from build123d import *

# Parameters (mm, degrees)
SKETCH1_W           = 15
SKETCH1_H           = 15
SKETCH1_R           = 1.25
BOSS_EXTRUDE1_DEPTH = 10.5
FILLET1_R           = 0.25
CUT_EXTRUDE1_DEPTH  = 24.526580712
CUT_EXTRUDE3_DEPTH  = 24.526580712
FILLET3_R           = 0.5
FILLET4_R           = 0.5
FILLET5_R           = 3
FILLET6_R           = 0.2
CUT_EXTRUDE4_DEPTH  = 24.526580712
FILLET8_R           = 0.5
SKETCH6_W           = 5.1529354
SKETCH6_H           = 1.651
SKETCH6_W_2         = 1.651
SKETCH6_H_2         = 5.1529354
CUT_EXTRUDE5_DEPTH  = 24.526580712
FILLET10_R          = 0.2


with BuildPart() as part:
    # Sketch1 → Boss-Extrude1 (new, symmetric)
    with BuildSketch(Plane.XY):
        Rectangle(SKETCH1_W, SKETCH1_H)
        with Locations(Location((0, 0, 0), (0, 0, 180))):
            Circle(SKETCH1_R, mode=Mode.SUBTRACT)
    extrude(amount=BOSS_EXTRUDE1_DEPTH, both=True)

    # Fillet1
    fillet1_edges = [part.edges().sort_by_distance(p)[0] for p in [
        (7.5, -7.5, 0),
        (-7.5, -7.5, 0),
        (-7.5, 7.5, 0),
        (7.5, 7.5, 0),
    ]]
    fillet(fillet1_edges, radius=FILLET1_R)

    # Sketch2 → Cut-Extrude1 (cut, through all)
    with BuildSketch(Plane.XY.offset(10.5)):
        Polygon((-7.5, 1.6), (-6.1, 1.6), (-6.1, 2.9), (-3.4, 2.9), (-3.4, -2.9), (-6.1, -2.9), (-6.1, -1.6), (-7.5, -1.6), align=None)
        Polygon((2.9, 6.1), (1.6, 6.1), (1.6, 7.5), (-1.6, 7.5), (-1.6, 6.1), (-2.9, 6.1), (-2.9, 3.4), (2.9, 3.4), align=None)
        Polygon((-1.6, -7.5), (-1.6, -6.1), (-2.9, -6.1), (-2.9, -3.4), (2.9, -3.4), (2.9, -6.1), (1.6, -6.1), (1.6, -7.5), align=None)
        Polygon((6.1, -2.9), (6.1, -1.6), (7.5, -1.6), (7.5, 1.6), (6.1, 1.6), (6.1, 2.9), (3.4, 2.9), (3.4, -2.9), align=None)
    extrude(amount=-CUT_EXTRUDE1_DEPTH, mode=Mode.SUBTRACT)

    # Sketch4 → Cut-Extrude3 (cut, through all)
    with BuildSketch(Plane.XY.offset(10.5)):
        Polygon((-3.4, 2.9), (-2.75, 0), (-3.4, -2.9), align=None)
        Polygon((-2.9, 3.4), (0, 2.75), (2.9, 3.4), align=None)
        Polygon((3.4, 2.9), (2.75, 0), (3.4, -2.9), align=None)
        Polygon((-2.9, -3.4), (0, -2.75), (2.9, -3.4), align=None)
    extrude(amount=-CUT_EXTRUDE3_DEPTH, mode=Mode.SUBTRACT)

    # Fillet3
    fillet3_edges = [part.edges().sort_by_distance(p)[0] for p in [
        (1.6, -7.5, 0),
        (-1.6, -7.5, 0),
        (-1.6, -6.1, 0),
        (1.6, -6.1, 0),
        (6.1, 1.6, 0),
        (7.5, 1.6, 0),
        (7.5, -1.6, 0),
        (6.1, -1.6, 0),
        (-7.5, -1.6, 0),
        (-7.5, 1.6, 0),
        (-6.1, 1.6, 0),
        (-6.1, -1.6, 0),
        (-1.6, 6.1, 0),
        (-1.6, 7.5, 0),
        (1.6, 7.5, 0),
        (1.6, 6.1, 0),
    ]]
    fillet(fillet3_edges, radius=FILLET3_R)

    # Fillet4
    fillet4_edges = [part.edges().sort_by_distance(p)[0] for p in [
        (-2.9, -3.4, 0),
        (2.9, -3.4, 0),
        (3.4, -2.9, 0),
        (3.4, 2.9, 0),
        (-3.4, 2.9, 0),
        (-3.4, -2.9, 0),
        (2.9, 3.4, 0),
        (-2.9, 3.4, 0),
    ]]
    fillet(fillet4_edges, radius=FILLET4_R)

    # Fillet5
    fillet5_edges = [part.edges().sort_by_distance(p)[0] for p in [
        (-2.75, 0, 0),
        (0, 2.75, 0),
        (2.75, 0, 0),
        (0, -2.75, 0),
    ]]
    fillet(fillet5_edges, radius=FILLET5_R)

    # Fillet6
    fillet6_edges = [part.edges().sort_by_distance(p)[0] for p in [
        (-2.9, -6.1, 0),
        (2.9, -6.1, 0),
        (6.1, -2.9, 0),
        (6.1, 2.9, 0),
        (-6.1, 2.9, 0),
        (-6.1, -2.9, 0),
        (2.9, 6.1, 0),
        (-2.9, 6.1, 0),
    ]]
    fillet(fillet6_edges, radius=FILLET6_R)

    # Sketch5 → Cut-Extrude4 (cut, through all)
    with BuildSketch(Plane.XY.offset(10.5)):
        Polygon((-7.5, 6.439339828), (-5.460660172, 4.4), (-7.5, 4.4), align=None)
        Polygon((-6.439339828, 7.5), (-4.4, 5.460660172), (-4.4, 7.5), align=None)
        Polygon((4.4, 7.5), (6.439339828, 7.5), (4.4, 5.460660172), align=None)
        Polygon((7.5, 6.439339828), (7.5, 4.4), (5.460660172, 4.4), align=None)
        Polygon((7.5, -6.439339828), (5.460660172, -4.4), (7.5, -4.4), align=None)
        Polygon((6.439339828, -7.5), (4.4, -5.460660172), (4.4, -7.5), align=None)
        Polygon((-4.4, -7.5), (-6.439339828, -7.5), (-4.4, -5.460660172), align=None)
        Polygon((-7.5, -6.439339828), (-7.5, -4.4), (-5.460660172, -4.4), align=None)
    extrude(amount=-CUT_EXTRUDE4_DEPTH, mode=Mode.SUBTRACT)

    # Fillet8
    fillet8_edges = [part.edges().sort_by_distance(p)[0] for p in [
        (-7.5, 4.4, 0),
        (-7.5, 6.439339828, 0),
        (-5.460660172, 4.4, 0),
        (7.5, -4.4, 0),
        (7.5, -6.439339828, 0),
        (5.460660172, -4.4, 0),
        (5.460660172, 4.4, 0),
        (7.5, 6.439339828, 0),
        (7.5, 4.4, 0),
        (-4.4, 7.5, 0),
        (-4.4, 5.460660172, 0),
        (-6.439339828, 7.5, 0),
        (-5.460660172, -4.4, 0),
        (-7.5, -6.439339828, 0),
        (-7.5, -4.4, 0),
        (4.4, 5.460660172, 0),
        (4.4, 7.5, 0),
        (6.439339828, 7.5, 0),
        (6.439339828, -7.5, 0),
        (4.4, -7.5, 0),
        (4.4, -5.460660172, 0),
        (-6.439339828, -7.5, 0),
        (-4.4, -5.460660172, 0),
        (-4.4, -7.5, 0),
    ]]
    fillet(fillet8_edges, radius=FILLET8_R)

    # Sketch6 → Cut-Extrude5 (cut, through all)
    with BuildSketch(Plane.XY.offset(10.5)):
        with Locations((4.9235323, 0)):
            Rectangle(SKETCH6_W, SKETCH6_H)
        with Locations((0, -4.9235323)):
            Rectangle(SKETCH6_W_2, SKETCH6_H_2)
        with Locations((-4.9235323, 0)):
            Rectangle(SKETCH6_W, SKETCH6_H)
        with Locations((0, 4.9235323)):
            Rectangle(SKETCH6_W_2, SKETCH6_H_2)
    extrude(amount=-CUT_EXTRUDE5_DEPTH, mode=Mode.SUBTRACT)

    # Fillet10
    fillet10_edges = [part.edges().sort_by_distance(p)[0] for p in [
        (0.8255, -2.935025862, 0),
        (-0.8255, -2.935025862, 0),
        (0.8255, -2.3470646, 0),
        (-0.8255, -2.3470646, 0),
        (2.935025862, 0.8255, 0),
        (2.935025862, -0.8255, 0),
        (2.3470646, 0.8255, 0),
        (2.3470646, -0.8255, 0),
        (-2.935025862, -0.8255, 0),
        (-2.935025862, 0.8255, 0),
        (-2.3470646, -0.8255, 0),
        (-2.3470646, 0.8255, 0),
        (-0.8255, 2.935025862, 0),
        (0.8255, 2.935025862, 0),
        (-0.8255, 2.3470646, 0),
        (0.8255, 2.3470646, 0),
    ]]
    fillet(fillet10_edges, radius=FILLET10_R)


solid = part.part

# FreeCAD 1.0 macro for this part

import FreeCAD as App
import Part
import Sketcher
from FreeCAD import Vector
Q = App.Units.Quantity


def edges_at(feature, points):
    """Names of the edges that pass closest to the given points."""
    edges = feature.Shape.Edges
    near = lambda p: min(range(len(edges)), key=lambda i: edges[i].distToShape(Part.Vertex(*p))[0])
    return sorted({f"Edge{near(p) + 1}" for p in points})

doc = App.newDocument("Part")
body = doc.addObject("PartDesign::Body", "Body")

sketch1 = doc.addObject("Sketcher::SketchObject", "Sketch")
body.addObject(sketch1)
sketch1.AttachmentSupport = (doc.XY_Plane, [""])
sketch1.MapMode = "FlatFace"
sketch1.addGeometry(Part.LineSegment(Vector(-7.5, 7.5, 0), Vector(-7.5, -7.5, 0)), False)
sketch1.addGeometry(Part.LineSegment(Vector(-7.5, -7.5, 0), Vector(7.5, -7.5, 0)), False)
sketch1.addGeometry(Part.LineSegment(Vector(7.5, -7.5, 0), Vector(7.5, 7.5, 0)), False)
sketch1.addGeometry(Part.LineSegment(Vector(7.5, 7.5, 0), Vector(-7.5, 7.5, 0)), False)
sketch1.addGeometry(Part.Circle(Vector(0, 0, 0), Vector(0, 0, 1), 1.2), False)
sketch1.addConstraint(Sketcher.Constraint("Coincident", 0, 2, 1, 1))
sketch1.addConstraint(Sketcher.Constraint("Coincident", 1, 2, 2, 1))
sketch1.addConstraint(Sketcher.Constraint("Coincident", 2, 2, 3, 1))
sketch1.addConstraint(Sketcher.Constraint("Coincident", 3, 2, 0, 1))
sketch1.addConstraint(Sketcher.Constraint("Vertical", 0))
sketch1.addConstraint(Sketcher.Constraint("Horizontal", 1))
sketch1.addConstraint(Sketcher.Constraint("Vertical", 2))
sketch1.addConstraint(Sketcher.Constraint("Horizontal", 3))
sketch1.addConstraint(Sketcher.Constraint("Coincident", 4, 3, -1, 1))
sketch1.addConstraint(Sketcher.Constraint("Symmetric", 0, 2, 2, 2, -1, 1))
sketch1.addConstraint(Sketcher.Constraint("Equal", 3, 0))
sketch1.addConstraint(Sketcher.Constraint("Diameter", 4, Q("2.5 mm")))
sketch1.addConstraint(Sketcher.Constraint("DistanceX", 1, 1, 1, 2, Q("15 mm")))
pad1 = doc.addObject("PartDesign::Pad", "Pad")
body.addObject(pad1)
pad1.Profile = sketch1
pad1.Length = 21
pad1.Midplane = True
doc.recompute()

fillet = doc.addObject("PartDesign::Fillet", "Fillet")
body.addObject(fillet)
fillet.Base = (pad1, edges_at(pad1, [
    (7.5, -7.5, 0),
    (-7.5, -7.5, 0),
    (-7.5, 7.5, 0),
    (7.5, 7.5, 0),
]))
fillet.Radius = 0.25

sketch2 = doc.addObject("Sketcher::SketchObject", "Sketch001")
body.addObject(sketch2)
sketch2.AttachmentSupport = (doc.XY_Plane, [""])
sketch2.MapMode = "FlatFace"
sketch2.AttachmentOffset = App.Placement(Vector(0, 0, 10.5), App.Rotation())
sketch2.addGeometry(Part.LineSegment(Vector(-6.1, 1.6, 0), Vector(-7.5, 1.6, 0)), False)
sketch2.addGeometry(Part.LineSegment(Vector(-7.5, 1.6, 0), Vector(-7.5, -1.6, 0)), False)
sketch2.addGeometry(Part.LineSegment(Vector(-7.5, -1.6, 0), Vector(-6.1, -1.6, 0)), False)
sketch2.addGeometry(Part.LineSegment(Vector(-6.1, -1.6, 0), Vector(-6.1, -2.9, 0)), False)
sketch2.addGeometry(Part.LineSegment(Vector(-6.1, -2.9, 0), Vector(-3.4, -2.9, 0)), False)
sketch2.addGeometry(Part.LineSegment(Vector(-3.4, -2.9, 0), Vector(-3.4, 2.9, 0)), False)
sketch2.addGeometry(Part.LineSegment(Vector(-3.4, 2.9, 0), Vector(-6.1, 2.9, 0)), False)
sketch2.addGeometry(Part.LineSegment(Vector(-6.1, 2.9, 0), Vector(-6.1, 1.6, 0)), False)
sketch2.addGeometry(Part.LineSegment(Vector(2.9, 6.1, 0), Vector(1.6, 6.1, 0)), False)
sketch2.addGeometry(Part.LineSegment(Vector(1.6, 6.1, 0), Vector(1.6, 7.5, 0)), False)
sketch2.addGeometry(Part.LineSegment(Vector(1.6, 7.5, 0), Vector(-1.6, 7.5, 0)), False)
sketch2.addGeometry(Part.LineSegment(Vector(-1.6, 7.5, 0), Vector(-1.6, 6.1, 0)), False)
sketch2.addGeometry(Part.LineSegment(Vector(-1.6, 6.1, 0), Vector(-2.9, 6.1, 0)), False)
sketch2.addGeometry(Part.LineSegment(Vector(-2.9, 6.1, 0), Vector(-2.9, 3.4, 0)), False)
sketch2.addGeometry(Part.LineSegment(Vector(-2.9, 3.4, 0), Vector(2.9, 3.4, 0)), False)
sketch2.addGeometry(Part.LineSegment(Vector(2.9, 3.4, 0), Vector(2.9, 6.1, 0)), False)
sketch2.addGeometry(Part.LineSegment(Vector(-1.6, -6.1, 0), Vector(-1.6, -7.5, 0)), False)
sketch2.addGeometry(Part.LineSegment(Vector(-1.6, -7.5, 0), Vector(1.6, -7.5, 0)), False)
sketch2.addGeometry(Part.LineSegment(Vector(1.6, -7.5, 0), Vector(1.6, -6.1, 0)), False)
sketch2.addGeometry(Part.LineSegment(Vector(1.6, -6.1, 0), Vector(2.9, -6.1, 0)), False)
sketch2.addGeometry(Part.LineSegment(Vector(2.9, -6.1, 0), Vector(2.9, -3.4, 0)), False)
sketch2.addGeometry(Part.LineSegment(Vector(2.9, -3.4, 0), Vector(-2.9, -3.4, 0)), False)
sketch2.addGeometry(Part.LineSegment(Vector(-2.9, -3.4, 0), Vector(-2.9, -6.1, 0)), False)
sketch2.addGeometry(Part.LineSegment(Vector(-2.9, -6.1, 0), Vector(-1.6, -6.1, 0)), False)
sketch2.addGeometry(Part.LineSegment(Vector(6.1, -2.9, 0), Vector(6.1, -1.6, 0)), False)
sketch2.addGeometry(Part.LineSegment(Vector(6.1, -1.6, 0), Vector(7.5, -1.6, 0)), False)
sketch2.addGeometry(Part.LineSegment(Vector(7.5, -1.6, 0), Vector(7.5, 1.6, 0)), False)
sketch2.addGeometry(Part.LineSegment(Vector(7.5, 1.6, 0), Vector(6.1, 1.6, 0)), False)
sketch2.addGeometry(Part.LineSegment(Vector(6.1, 1.6, 0), Vector(6.1, 2.9, 0)), False)
sketch2.addGeometry(Part.LineSegment(Vector(6.1, 2.9, 0), Vector(3.4, 2.9, 0)), False)
sketch2.addGeometry(Part.LineSegment(Vector(3.4, 2.9, 0), Vector(3.4, -2.9, 0)), False)
sketch2.addGeometry(Part.LineSegment(Vector(3.4, -2.9, 0), Vector(6.1, -2.9, 0)), False)
sketch2.addConstraint(Sketcher.Constraint("Coincident", 0, 2, 1, 1))
sketch2.addConstraint(Sketcher.Constraint("Coincident", 1, 2, 2, 1))
sketch2.addConstraint(Sketcher.Constraint("Coincident", 2, 2, 3, 1))
sketch2.addConstraint(Sketcher.Constraint("Coincident", 3, 2, 4, 1))
sketch2.addConstraint(Sketcher.Constraint("Coincident", 4, 2, 5, 1))
sketch2.addConstraint(Sketcher.Constraint("Coincident", 5, 2, 6, 1))
sketch2.addConstraint(Sketcher.Constraint("Coincident", 6, 2, 7, 1))
sketch2.addConstraint(Sketcher.Constraint("Coincident", 7, 2, 0, 1))
sketch2.addConstraint(Sketcher.Constraint("Coincident", 8, 2, 9, 1))
sketch2.addConstraint(Sketcher.Constraint("Coincident", 9, 2, 10, 1))
sketch2.addConstraint(Sketcher.Constraint("Coincident", 10, 2, 11, 1))
sketch2.addConstraint(Sketcher.Constraint("Coincident", 11, 2, 12, 1))
sketch2.addConstraint(Sketcher.Constraint("Coincident", 12, 2, 13, 1))
sketch2.addConstraint(Sketcher.Constraint("Coincident", 13, 2, 14, 1))
sketch2.addConstraint(Sketcher.Constraint("Coincident", 14, 2, 15, 1))
sketch2.addConstraint(Sketcher.Constraint("Coincident", 15, 2, 8, 1))
sketch2.addConstraint(Sketcher.Constraint("Coincident", 16, 2, 17, 1))
sketch2.addConstraint(Sketcher.Constraint("Coincident", 17, 2, 18, 1))
sketch2.addConstraint(Sketcher.Constraint("Coincident", 18, 2, 19, 1))
sketch2.addConstraint(Sketcher.Constraint("Coincident", 19, 2, 20, 1))
sketch2.addConstraint(Sketcher.Constraint("Coincident", 20, 2, 21, 1))
sketch2.addConstraint(Sketcher.Constraint("Coincident", 21, 2, 22, 1))
sketch2.addConstraint(Sketcher.Constraint("Coincident", 22, 2, 23, 1))
sketch2.addConstraint(Sketcher.Constraint("Coincident", 23, 2, 16, 1))
sketch2.addConstraint(Sketcher.Constraint("Coincident", 24, 2, 25, 1))
sketch2.addConstraint(Sketcher.Constraint("Coincident", 25, 2, 26, 1))
sketch2.addConstraint(Sketcher.Constraint("Coincident", 26, 2, 27, 1))
sketch2.addConstraint(Sketcher.Constraint("Coincident", 27, 2, 28, 1))
sketch2.addConstraint(Sketcher.Constraint("Coincident", 28, 2, 29, 1))
sketch2.addConstraint(Sketcher.Constraint("Coincident", 29, 2, 30, 1))
sketch2.addConstraint(Sketcher.Constraint("Coincident", 30, 2, 31, 1))
sketch2.addConstraint(Sketcher.Constraint("Coincident", 31, 2, 24, 1))
sketch2.addConstraint(Sketcher.Constraint("Horizontal", 0))
sketch2.addConstraint(Sketcher.Constraint("Vertical", 1))
sketch2.addConstraint(Sketcher.Constraint("Horizontal", 2))
sketch2.addConstraint(Sketcher.Constraint("Vertical", 3))
sketch2.addConstraint(Sketcher.Constraint("Horizontal", 4))
sketch2.addConstraint(Sketcher.Constraint("Vertical", 5))
sketch2.addConstraint(Sketcher.Constraint("Horizontal", 6))
sketch2.addConstraint(Sketcher.Constraint("Vertical", 7))
sketch2.addConstraint(Sketcher.Constraint("Horizontal", 8))
sketch2.addConstraint(Sketcher.Constraint("Vertical", 9))
sketch2.addConstraint(Sketcher.Constraint("Horizontal", 10))
sketch2.addConstraint(Sketcher.Constraint("Vertical", 11))
sketch2.addConstraint(Sketcher.Constraint("Horizontal", 12))
sketch2.addConstraint(Sketcher.Constraint("Vertical", 13))
sketch2.addConstraint(Sketcher.Constraint("Horizontal", 14))
sketch2.addConstraint(Sketcher.Constraint("Vertical", 15))
sketch2.addConstraint(Sketcher.Constraint("Vertical", 16))
sketch2.addConstraint(Sketcher.Constraint("Horizontal", 17))
sketch2.addConstraint(Sketcher.Constraint("Vertical", 18))
sketch2.addConstraint(Sketcher.Constraint("Horizontal", 19))
sketch2.addConstraint(Sketcher.Constraint("Vertical", 20))
sketch2.addConstraint(Sketcher.Constraint("Horizontal", 21))
sketch2.addConstraint(Sketcher.Constraint("Vertical", 22))
sketch2.addConstraint(Sketcher.Constraint("Horizontal", 23))
sketch2.addConstraint(Sketcher.Constraint("Vertical", 24))
sketch2.addConstraint(Sketcher.Constraint("Horizontal", 25))
sketch2.addConstraint(Sketcher.Constraint("Vertical", 26))
sketch2.addConstraint(Sketcher.Constraint("Horizontal", 27))
sketch2.addConstraint(Sketcher.Constraint("Vertical", 28))
sketch2.addConstraint(Sketcher.Constraint("Horizontal", 29))
sketch2.addConstraint(Sketcher.Constraint("Vertical", 30))
sketch2.addConstraint(Sketcher.Constraint("Horizontal", 31))
sketch2.addConstraint(Sketcher.Constraint("Symmetric", 9, 2, 16, 2, -1, 1))
sketch2.addConstraint(Sketcher.Constraint("Symmetric", 11, 2, 18, 2, -1, 1))
sketch2.addConstraint(Sketcher.Constraint("Symmetric", 13, 2, 20, 2, -1, 1))
sketch2.addConstraint(Sketcher.Constraint("Symmetric", 15, 2, 22, 2, -1, 1))
sketch2.addConstraint(Sketcher.Constraint("Symmetric", 7, 2, 24, 2, -1, 1))
sketch2.addConstraint(Sketcher.Constraint("Symmetric", 1, 2, 26, 2, -1, 1))
sketch2.addConstraint(Sketcher.Constraint("Symmetric", 3, 2, 28, 2, -1, 1))
sketch2.addConstraint(Sketcher.Constraint("Symmetric", 5, 2, 30, 2, -1, 1))
sketch2.addConstraint(Sketcher.Constraint("Symmetric", 8, 2, 11, 2, -2))
sketch2.addConstraint(Sketcher.Constraint("Symmetric", 2, 2, 24, 2, -2))
sketch2.addConstraint(Sketcher.Constraint("Horizontal", 6, 2, 28, 2))
sketch2.addConstraint(Sketcher.Constraint("Vertical", 15, 2, 19, 2))
sketch2.addConstraint(Sketcher.Constraint("Equal", 17, 1))
sketch2.addConstraint(Sketcher.Constraint("Equal", 23, 3))
sketch2.addConstraint(Sketcher.Constraint("Equal", 27, 9))
sketch2.addConstraint(Sketcher.Constraint("Equal", 31, 13))
sketch2.addConstraint(Sketcher.Constraint("DistanceX", 0, 2, 0, 1, Q("1.4 mm")))
sketch2.addConstraint(Sketcher.Constraint("DistanceX", 4, 1, 4, 2, Q("2.7 mm")))
sketch2.addConstraint(Sketcher.Constraint("DistanceX", 8, 2, 8, 1, Q("1.3 mm")))
sketch2.addConstraint(Sketcher.Constraint("DistanceX", 10, 2, 10, 1, Q("3.2 mm")))
sketch2.addConstraint(Sketcher.Constraint("DistanceX", 5, 2, 8, 2, Q("5 mm")))
sketch2.addConstraint(Sketcher.Constraint("DistanceY", 4, 2, 8, 2, Q("9 mm")))
pocket1 = doc.addObject("PartDesign::Pocket", "Pocket")
body.addObject(pocket1)
pocket1.Profile = sketch2
pocket1.Type = "ThroughAll"

sketch3 = doc.addObject("Sketcher::SketchObject", "Sketch002")
body.addObject(sketch3)
sketch3.AttachmentSupport = (doc.XY_Plane, [""])
sketch3.MapMode = "FlatFace"
sketch3.AttachmentOffset = App.Placement(Vector(0, 0, 10.5), App.Rotation())
sketch3.addGeometry(Part.LineSegment(Vector(-2.8, 0, 0), Vector(-3.4, 2.9, 0)), False)
sketch3.addGeometry(Part.LineSegment(Vector(-3.4, 2.9, 0), Vector(-3.4, -2.9, 0)), False)
sketch3.addGeometry(Part.LineSegment(Vector(-3.4, -2.9, 0), Vector(-2.8, 0, 0)), False)
sketch3.addGeometry(Part.LineSegment(Vector(-2.9, 3.4, 0), Vector(0, 2.8, 0)), False)
sketch3.addGeometry(Part.LineSegment(Vector(0, 2.8, 0), Vector(2.9, 3.4, 0)), False)
sketch3.addGeometry(Part.LineSegment(Vector(2.9, 3.4, 0), Vector(-2.9, 3.4, 0)), False)
sketch3.addGeometry(Part.LineSegment(Vector(3.4, 2.9, 0), Vector(2.8, 0, 0)), False)
sketch3.addGeometry(Part.LineSegment(Vector(2.8, 0, 0), Vector(3.4, -2.9, 0)), False)
sketch3.addGeometry(Part.LineSegment(Vector(3.4, -2.9, 0), Vector(3.4, 2.9, 0)), False)
sketch3.addGeometry(Part.LineSegment(Vector(0, -2.8, 0), Vector(-2.9, -3.4, 0)), False)
sketch3.addGeometry(Part.LineSegment(Vector(-2.9, -3.4, 0), Vector(2.9, -3.4, 0)), False)
sketch3.addGeometry(Part.LineSegment(Vector(2.9, -3.4, 0), Vector(0, -2.8, 0)), False)
sketch3.addConstraint(Sketcher.Constraint("Coincident", 0, 2, 1, 1))
sketch3.addConstraint(Sketcher.Constraint("Coincident", 1, 2, 2, 1))
sketch3.addConstraint(Sketcher.Constraint("Coincident", 2, 2, 0, 1))
sketch3.addConstraint(Sketcher.Constraint("Coincident", 3, 2, 4, 1))
sketch3.addConstraint(Sketcher.Constraint("Coincident", 4, 2, 5, 1))
sketch3.addConstraint(Sketcher.Constraint("Coincident", 5, 2, 3, 1))
sketch3.addConstraint(Sketcher.Constraint("Coincident", 6, 2, 7, 1))
sketch3.addConstraint(Sketcher.Constraint("Coincident", 7, 2, 8, 1))
sketch3.addConstraint(Sketcher.Constraint("Coincident", 8, 2, 6, 1))
sketch3.addConstraint(Sketcher.Constraint("Coincident", 9, 2, 10, 1))
sketch3.addConstraint(Sketcher.Constraint("Coincident", 10, 2, 11, 1))
sketch3.addConstraint(Sketcher.Constraint("Coincident", 11, 2, 9, 1))
sketch3.addConstraint(Sketcher.Constraint("Vertical", 1))
sketch3.addConstraint(Sketcher.Constraint("Horizontal", 5))
sketch3.addConstraint(Sketcher.Constraint("Vertical", 8))
sketch3.addConstraint(Sketcher.Constraint("Horizontal", 10))
sketch3.addConstraint(Sketcher.Constraint("Symmetric", 2, 2, 6, 2, -1, 1))
sketch3.addConstraint(Sketcher.Constraint("Symmetric", 0, 2, 7, 2, -1, 1))
sketch3.addConstraint(Sketcher.Constraint("Symmetric", 4, 2, 9, 2, -1, 1))
sketch3.addConstraint(Sketcher.Constraint("Symmetric", 3, 2, 11, 2, -1, 1))
sketch3.addConstraint(Sketcher.Constraint("PointOnObject", 2, 2, -1))
sketch3.addConstraint(Sketcher.Constraint("PointOnObject", 3, 2, -2))
sketch3.addConstraint(Sketcher.Constraint("Perpendicular", 2, 3))
sketch3.addConstraint(Sketcher.Constraint("Perpendicular", 0, 4))
sketch3.addConstraint(Sketcher.Constraint("Perpendicular", 3, 6))
sketch3.addConstraint(Sketcher.Constraint("Perpendicular", 6, 11))
sketch3.addConstraint(Sketcher.Constraint("Horizontal", 1, 2, 7, 2))
sketch3.addConstraint(Sketcher.Constraint("Equal", 10, 1))
sketch3.addConstraint(Sketcher.Constraint("DistanceX", 5, 2, 5, 1, Q("5.8 mm")))
sketch3.addConstraint(Sketcher.Constraint("DistanceX", 0, 2, -1, 1, Q("3.4 mm")))
sketch3.addConstraint(Sketcher.Constraint("DistanceY", -1, 1, 4, 2, Q("3.4 mm")))
sketch3.addConstraint(Sketcher.Constraint("DistanceX", 2, 2, 6, 2, Q("5.5 mm")))
pocket2 = doc.addObject("PartDesign::Pocket", "Pocket001")
body.addObject(pocket2)
pocket2.Profile = sketch3
pocket2.Type = "ThroughAll"
doc.recompute()

fillet2 = doc.addObject("PartDesign::Fillet", "Fillet001")
body.addObject(fillet2)
fillet2.Base = (pocket2, edges_at(pocket2, [
    (1.6, -7.5, 0),
    (-1.6, -7.5, 0),
    (-1.6, -6.1, 0),
    (1.6, -6.1, 0),
    (6.1, 1.6, 0),
    (7.5, 1.6, 0),
    (7.5, -1.6, 0),
    (6.1, -1.6, 0),
    (-7.5, -1.6, 0),
    (-7.5, 1.6, 0),
    (-6.1, 1.6, 0),
    (-6.1, -1.6, 0),
    (-1.6, 6.1, 0),
    (-1.6, 7.5, 0),
    (1.6, 7.5, 0),
    (1.6, 6.1, 0),
]))
fillet2.Radius = 0.5
doc.recompute()

fillet3 = doc.addObject("PartDesign::Fillet", "Fillet002")
body.addObject(fillet3)
fillet3.Base = (fillet2, edges_at(fillet2, [
    (-2.9, -3.4, 0),
    (2.9, -3.4, 0),
    (3.4, -2.9, 0),
    (3.4, 2.9, 0),
    (-3.4, 2.9, 0),
    (-3.4, -2.9, 0),
    (2.9, 3.4, 0),
    (-2.9, 3.4, 0),
]))
fillet3.Radius = 0.5
doc.recompute()

fillet4 = doc.addObject("PartDesign::Fillet", "Fillet003")
body.addObject(fillet4)
fillet4.Base = (fillet3, edges_at(fillet3, [
    (-2.75, 0, 0),
    (0, 2.75, 0),
    (2.75, 0, 0),
    (0, -2.75, 0),
]))
fillet4.Radius = 3
doc.recompute()

fillet5 = doc.addObject("PartDesign::Fillet", "Fillet004")
body.addObject(fillet5)
fillet5.Base = (fillet4, edges_at(fillet4, [
    (-2.9, -6.1, 0),
    (2.9, -6.1, 0),
    (6.1, -2.9, 0),
    (6.1, 2.9, 0),
    (-6.1, 2.9, 0),
    (-6.1, -2.9, 0),
    (2.9, 6.1, 0),
    (-2.9, 6.1, 0),
]))
fillet5.Radius = 0.2

sketch4 = doc.addObject("Sketcher::SketchObject", "Sketch003")
body.addObject(sketch4)
sketch4.AttachmentSupport = (doc.XY_Plane, [""])
sketch4.MapMode = "FlatFace"
sketch4.AttachmentOffset = App.Placement(Vector(0, 0, 10.5), App.Rotation())
sketch4.addGeometry(Part.LineSegment(Vector(-5.5, 4.4, 0), Vector(-7.5, 6.4, 0)), False)
sketch4.addGeometry(Part.LineSegment(Vector(-7.5, 6.4, 0), Vector(-7.5, 4.4, 0)), False)
sketch4.addGeometry(Part.LineSegment(Vector(-7.5, 4.4, 0), Vector(-5.5, 4.4, 0)), False)
sketch4.addGeometry(Part.LineSegment(Vector(-6.4, 7.5, 0), Vector(-4.4, 5.5, 0)), False)
sketch4.addGeometry(Part.LineSegment(Vector(-4.4, 5.5, 0), Vector(-4.4, 7.5, 0)), False)
sketch4.addGeometry(Part.LineSegment(Vector(-4.4, 7.5, 0), Vector(-6.4, 7.5, 0)), False)
sketch4.addGeometry(Part.LineSegment(Vector(6.4, 7.5, 0), Vector(4.4, 7.5, 0)), False)
sketch4.addGeometry(Part.LineSegment(Vector(4.4, 7.5, 0), Vector(4.4, 5.5, 0)), False)
sketch4.addGeometry(Part.LineSegment(Vector(4.4, 5.5, 0), Vector(6.4, 7.5, 0)), False)
sketch4.addGeometry(Part.LineSegment(Vector(7.5, 4.4, 0), Vector(7.5, 6.4, 0)), False)
sketch4.addGeometry(Part.LineSegment(Vector(7.5, 6.4, 0), Vector(5.5, 4.4, 0)), False)
sketch4.addGeometry(Part.LineSegment(Vector(5.5, 4.4, 0), Vector(7.5, 4.4, 0)), False)
sketch4.addGeometry(Part.LineSegment(Vector(5.5, -4.4, 0), Vector(7.5, -6.4, 0)), False)
sketch4.addGeometry(Part.LineSegment(Vector(7.5, -6.4, 0), Vector(7.5, -4.4, 0)), False)
sketch4.addGeometry(Part.LineSegment(Vector(7.5, -4.4, 0), Vector(5.5, -4.4, 0)), False)
sketch4.addGeometry(Part.LineSegment(Vector(6.4, -7.5, 0), Vector(4.4, -5.5, 0)), False)
sketch4.addGeometry(Part.LineSegment(Vector(4.4, -5.5, 0), Vector(4.4, -7.5, 0)), False)
sketch4.addGeometry(Part.LineSegment(Vector(4.4, -7.5, 0), Vector(6.4, -7.5, 0)), False)
sketch4.addGeometry(Part.LineSegment(Vector(-6.4, -7.5, 0), Vector(-4.4, -7.5, 0)), False)
sketch4.addGeometry(Part.LineSegment(Vector(-4.4, -7.5, 0), Vector(-4.4, -5.5, 0)), False)
sketch4.addGeometry(Part.LineSegment(Vector(-4.4, -5.5, 0), Vector(-6.4, -7.5, 0)), False)
sketch4.addGeometry(Part.LineSegment(Vector(-7.5, -4.4, 0), Vector(-7.5, -6.4, 0)), False)
sketch4.addGeometry(Part.LineSegment(Vector(-7.5, -6.4, 0), Vector(-5.5, -4.4, 0)), False)
sketch4.addGeometry(Part.LineSegment(Vector(-5.5, -4.4, 0), Vector(-7.5, -4.4, 0)), False)
sketch4.addConstraint(Sketcher.Constraint("Coincident", 0, 2, 1, 1))
sketch4.addConstraint(Sketcher.Constraint("Coincident", 1, 2, 2, 1))
sketch4.addConstraint(Sketcher.Constraint("Coincident", 2, 2, 0, 1))
sketch4.addConstraint(Sketcher.Constraint("Coincident", 3, 2, 4, 1))
sketch4.addConstraint(Sketcher.Constraint("Coincident", 4, 2, 5, 1))
sketch4.addConstraint(Sketcher.Constraint("Coincident", 5, 2, 3, 1))
sketch4.addConstraint(Sketcher.Constraint("Coincident", 6, 2, 7, 1))
sketch4.addConstraint(Sketcher.Constraint("Coincident", 7, 2, 8, 1))
sketch4.addConstraint(Sketcher.Constraint("Coincident", 8, 2, 6, 1))
sketch4.addConstraint(Sketcher.Constraint("Coincident", 9, 2, 10, 1))
sketch4.addConstraint(Sketcher.Constraint("Coincident", 10, 2, 11, 1))
sketch4.addConstraint(Sketcher.Constraint("Coincident", 11, 2, 9, 1))
sketch4.addConstraint(Sketcher.Constraint("Coincident", 12, 2, 13, 1))
sketch4.addConstraint(Sketcher.Constraint("Coincident", 13, 2, 14, 1))
sketch4.addConstraint(Sketcher.Constraint("Coincident", 14, 2, 12, 1))
sketch4.addConstraint(Sketcher.Constraint("Coincident", 15, 2, 16, 1))
sketch4.addConstraint(Sketcher.Constraint("Coincident", 16, 2, 17, 1))
sketch4.addConstraint(Sketcher.Constraint("Coincident", 17, 2, 15, 1))
sketch4.addConstraint(Sketcher.Constraint("Coincident", 18, 2, 19, 1))
sketch4.addConstraint(Sketcher.Constraint("Coincident", 19, 2, 20, 1))
sketch4.addConstraint(Sketcher.Constraint("Coincident", 20, 2, 18, 1))
sketch4.addConstraint(Sketcher.Constraint("Coincident", 21, 2, 22, 1))
sketch4.addConstraint(Sketcher.Constraint("Coincident", 22, 2, 23, 1))
sketch4.addConstraint(Sketcher.Constraint("Coincident", 23, 2, 21, 1))
sketch4.addConstraint(Sketcher.Constraint("Vertical", 1))
sketch4.addConstraint(Sketcher.Constraint("Horizontal", 2))
sketch4.addConstraint(Sketcher.Constraint("Vertical", 4))
sketch4.addConstraint(Sketcher.Constraint("Horizontal", 5))
sketch4.addConstraint(Sketcher.Constraint("Horizontal", 6))
sketch4.addConstraint(Sketcher.Constraint("Vertical", 7))
sketch4.addConstraint(Sketcher.Constraint("Vertical", 9))
sketch4.addConstraint(Sketcher.Constraint("Horizontal", 11))
sketch4.addConstraint(Sketcher.Constraint("Vertical", 13))
sketch4.addConstraint(Sketcher.Constraint("Horizontal", 14))
sketch4.addConstraint(Sketcher.Constraint("Vertical", 16))
sketch4.addConstraint(Sketcher.Constraint("Horizontal", 17))
sketch4.addConstraint(Sketcher.Constraint("Horizontal", 18))
sketch4.addConstraint(Sketcher.Constraint("Vertical", 19))
sketch4.addConstraint(Sketcher.Constraint("Vertical", 21))
sketch4.addConstraint(Sketcher.Constraint("Horizontal", 23))
sketch4.addConstraint(Sketcher.Constraint("Symmetric", 0, 2, 12, 2, -1, 1))
sketch4.addConstraint(Sketcher.Constraint("Symmetric", 2, 2, 14, 2, -1, 1))
sketch4.addConstraint(Sketcher.Constraint("Symmetric", 3, 2, 15, 2, -1, 1))
sketch4.addConstraint(Sketcher.Constraint("Symmetric", 5, 2, 17, 2, -1, 1))
sketch4.addConstraint(Sketcher.Constraint("Symmetric", 6, 2, 18, 2, -1, 1))
sketch4.addConstraint(Sketcher.Constraint("Symmetric", 9, 2, 21, 2, -1, 1))
sketch4.addConstraint(Sketcher.Constraint("Symmetric", 10, 2, 22, 2, -1, 1))
sketch4.addConstraint(Sketcher.Constraint("Symmetric", 4, 2, 6, 2, -2))
sketch4.addConstraint(Sketcher.Constraint("Symmetric", 0, 2, 9, 2, -2))
sketch4.addConstraint(Sketcher.Constraint("Symmetric", 2, 2, 10, 2, -2))
sketch4.addConstraint(Sketcher.Constraint("Parallel", 0, 3))
sketch4.addConstraint(Sketcher.Constraint("Perpendicular", 3, 8))
sketch4.addConstraint(Sketcher.Constraint("Parallel", 8, 10))
sketch4.addConstraint(Sketcher.Constraint("Perpendicular", 15, 20))
sketch4.addConstraint(Sketcher.Constraint("Horizontal", 3, 2, 7, 2))
sketch4.addConstraint(Sketcher.Constraint("Horizontal", 15, 2, 19, 2))
sketch4.addConstraint(Sketcher.Constraint("Equal", 2, 5))
sketch4.addConstraint(Sketcher.Constraint("DistanceX", 0, 2, -1, 1, Q("7.5 mm")))
sketch4.addConstraint(Sketcher.Constraint("DistanceY", -1, 1, 1, 2, Q("4.4 mm")))
sketch4.addConstraint(Sketcher.Constraint("DistanceX", 3, 2, -1, 1, Q("4.4 mm")))
sketch4.addConstraint(Sketcher.Constraint("DistanceY", -1, 1, 4, 2, Q("7.5 mm")))
sketch4.addConstraint(Sketcher.Constraint("DistanceX", 2, 1, 2, 2, Q("2.03934 mm")))
pocket3 = doc.addObject("PartDesign::Pocket", "Pocket002")
body.addObject(pocket3)
pocket3.Profile = sketch4
pocket3.Type = "ThroughAll"
doc.recompute()

fillet6 = doc.addObject("PartDesign::Fillet", "Fillet005")
body.addObject(fillet6)
fillet6.Base = (pocket3, edges_at(pocket3, [
    (-7.5, 4.4, 0),
    (-7.5, 6.439, 0),
    (-5.461, 4.4, 0),
    (7.5, -4.4, 0),
    (7.5, -6.439, 0),
    (5.461, -4.4, 0),
    (5.461, 4.4, 0),
    (7.5, 6.439, 0),
    (7.5, 4.4, 0),
    (-4.4, 7.5, 0),
    (-4.4, 5.461, 0),
    (-6.439, 7.5, 0),
    (-5.461, -4.4, 0),
    (-7.5, -6.439, 0),
    (-7.5, -4.4, 0),
    (4.4, 5.461, 0),
    (4.4, 7.5, 0),
    (6.439, 7.5, 0),
    (6.439, -7.5, 0),
    (4.4, -7.5, 0),
    (4.4, -5.461, 0),
    (-6.439, -7.5, 0),
    (-4.4, -5.461, 0),
    (-4.4, -7.5, 0),
]))
fillet6.Radius = 0.5

sketch5 = doc.addObject("Sketcher::SketchObject", "Sketch004")
body.addObject(sketch5)
sketch5.AttachmentSupport = (doc.XY_Plane, [""])
sketch5.MapMode = "FlatFace"
sketch5.AttachmentOffset = App.Placement(Vector(0, 0, 10.5), App.Rotation())
sketch5.addGeometry(Part.LineSegment(Vector(2.3, 0.8, 0), Vector(2.3, -0.8, 0)), False)
sketch5.addGeometry(Part.LineSegment(Vector(2.3, -0.8, 0), Vector(7.5, -0.8, 0)), False)
sketch5.addGeometry(Part.LineSegment(Vector(7.5, -0.8, 0), Vector(7.5, 0.8, 0)), False)
sketch5.addGeometry(Part.LineSegment(Vector(7.5, 0.8, 0), Vector(2.3, 0.8, 0)), False)
sketch5.addGeometry(Part.LineSegment(Vector(-0.8, -2.3, 0), Vector(-0.8, -7.5, 0)), False)
sketch5.addGeometry(Part.LineSegment(Vector(-0.8, -7.5, 0), Vector(0.8, -7.5, 0)), False)
sketch5.addGeometry(Part.LineSegment(Vector(0.8, -7.5, 0), Vector(0.8, -2.3, 0)), False)
sketch5.addGeometry(Part.LineSegment(Vector(0.8, -2.3, 0), Vector(-0.8, -2.3, 0)), False)
sketch5.addGeometry(Part.LineSegment(Vector(-7.5, 0.8, 0), Vector(-7.5, -0.8, 0)), False)
sketch5.addGeometry(Part.LineSegment(Vector(-7.5, -0.8, 0), Vector(-2.3, -0.8, 0)), False)
sketch5.addGeometry(Part.LineSegment(Vector(-2.3, -0.8, 0), Vector(-2.3, 0.8, 0)), False)
sketch5.addGeometry(Part.LineSegment(Vector(-2.3, 0.8, 0), Vector(-7.5, 0.8, 0)), False)
sketch5.addGeometry(Part.LineSegment(Vector(-0.8, 7.5, 0), Vector(-0.8, 2.3, 0)), False)
sketch5.addGeometry(Part.LineSegment(Vector(-0.8, 2.3, 0), Vector(0.8, 2.3, 0)), False)
sketch5.addGeometry(Part.LineSegment(Vector(0.8, 2.3, 0), Vector(0.8, 7.5, 0)), False)
sketch5.addGeometry(Part.LineSegment(Vector(0.8, 7.5, 0), Vector(-0.8, 7.5, 0)), False)
sketch5.addConstraint(Sketcher.Constraint("Coincident", 0, 2, 1, 1))
sketch5.addConstraint(Sketcher.Constraint("Coincident", 1, 2, 2, 1))
sketch5.addConstraint(Sketcher.Constraint("Coincident", 2, 2, 3, 1))
sketch5.addConstraint(Sketcher.Constraint("Coincident", 3, 2, 0, 1))
sketch5.addConstraint(Sketcher.Constraint("Coincident", 4, 2, 5, 1))
sketch5.addConstraint(Sketcher.Constraint("Coincident", 5, 2, 6, 1))
sketch5.addConstraint(Sketcher.Constraint("Coincident", 6, 2, 7, 1))
sketch5.addConstraint(Sketcher.Constraint("Coincident", 7, 2, 4, 1))
sketch5.addConstraint(Sketcher.Constraint("Coincident", 8, 2, 9, 1))
sketch5.addConstraint(Sketcher.Constraint("Coincident", 9, 2, 10, 1))
sketch5.addConstraint(Sketcher.Constraint("Coincident", 10, 2, 11, 1))
sketch5.addConstraint(Sketcher.Constraint("Coincident", 11, 2, 8, 1))
sketch5.addConstraint(Sketcher.Constraint("Coincident", 12, 2, 13, 1))
sketch5.addConstraint(Sketcher.Constraint("Coincident", 13, 2, 14, 1))
sketch5.addConstraint(Sketcher.Constraint("Coincident", 14, 2, 15, 1))
sketch5.addConstraint(Sketcher.Constraint("Coincident", 15, 2, 12, 1))
sketch5.addConstraint(Sketcher.Constraint("Vertical", 0))
sketch5.addConstraint(Sketcher.Constraint("Horizontal", 1))
sketch5.addConstraint(Sketcher.Constraint("Vertical", 2))
sketch5.addConstraint(Sketcher.Constraint("Horizontal", 3))
sketch5.addConstraint(Sketcher.Constraint("Vertical", 4))
sketch5.addConstraint(Sketcher.Constraint("Horizontal", 5))
sketch5.addConstraint(Sketcher.Constraint("Vertical", 6))
sketch5.addConstraint(Sketcher.Constraint("Horizontal", 7))
sketch5.addConstraint(Sketcher.Constraint("Vertical", 8))
sketch5.addConstraint(Sketcher.Constraint("Horizontal", 9))
sketch5.addConstraint(Sketcher.Constraint("Vertical", 10))
sketch5.addConstraint(Sketcher.Constraint("Horizontal", 11))
sketch5.addConstraint(Sketcher.Constraint("Vertical", 12))
sketch5.addConstraint(Sketcher.Constraint("Horizontal", 13))
sketch5.addConstraint(Sketcher.Constraint("Vertical", 14))
sketch5.addConstraint(Sketcher.Constraint("Horizontal", 15))
sketch5.addConstraint(Sketcher.Constraint("Symmetric", 2, 2, 8, 2, -1, 1))
sketch5.addConstraint(Sketcher.Constraint("Symmetric", 0, 2, 10, 2, -1, 1))
sketch5.addConstraint(Sketcher.Constraint("Symmetric", 6, 2, 12, 2, -1, 1))
sketch5.addConstraint(Sketcher.Constraint("Symmetric", 4, 2, 14, 2, -1, 1))
sketch5.addConstraint(Sketcher.Constraint("Horizontal", 1, 2, 8, 2))
sketch5.addConstraint(Sketcher.Constraint("Vertical", 7, 2, 12, 2))
sketch5.addConstraint(Sketcher.Constraint("Equal", 15, 0))
sketch5.addConstraint(Sketcher.Constraint("Equal", 11, 4))
sketch5.addConstraint(Sketcher.Constraint("DistanceX", -1, 1, 1, 2, Q("7.5 mm")))
sketch5.addConstraint(Sketcher.Constraint("DistanceY", 4, 2, -1, 1, Q("7.5 mm")))
sketch5.addConstraint(Sketcher.Constraint("DistanceX", 5, 1, 5, 2, Q("1.651 mm")))
sketch5.addConstraint(Sketcher.Constraint("DistanceX", 1, 1, 1, 2, Q("5.152935 mm")))
pocket4 = doc.addObject("PartDesign::Pocket", "Pocket003")
body.addObject(pocket4)
pocket4.Profile = sketch5
pocket4.Type = "ThroughAll"
doc.recompute()

fillet7 = doc.addObject("PartDesign::Fillet", "Fillet006")
body.addObject(fillet7)
fillet7.Base = (pocket4, edges_at(pocket4, [
    (0.826, -2.935, 0),
    (-0.826, -2.935, 0),
    (0.826, -2.347, 0),
    (-0.826, -2.347, 0),
    (2.935, 0.826, 0),
    (2.935, -0.826, 0),
    (2.347, 0.826, 0),
    (2.347, -0.826, 0),
    (-2.935, -0.826, 0),
    (-2.935, 0.826, 0),
    (-2.347, -0.826, 0),
    (-2.347, 0.826, 0),
    (-0.826, 2.935, 0),
    (0.826, 2.935, 0),
    (-0.826, 2.347, 0),
    (0.826, 2.347, 0),
]))
fillet7.Radius = 0.2

doc.recompute()
